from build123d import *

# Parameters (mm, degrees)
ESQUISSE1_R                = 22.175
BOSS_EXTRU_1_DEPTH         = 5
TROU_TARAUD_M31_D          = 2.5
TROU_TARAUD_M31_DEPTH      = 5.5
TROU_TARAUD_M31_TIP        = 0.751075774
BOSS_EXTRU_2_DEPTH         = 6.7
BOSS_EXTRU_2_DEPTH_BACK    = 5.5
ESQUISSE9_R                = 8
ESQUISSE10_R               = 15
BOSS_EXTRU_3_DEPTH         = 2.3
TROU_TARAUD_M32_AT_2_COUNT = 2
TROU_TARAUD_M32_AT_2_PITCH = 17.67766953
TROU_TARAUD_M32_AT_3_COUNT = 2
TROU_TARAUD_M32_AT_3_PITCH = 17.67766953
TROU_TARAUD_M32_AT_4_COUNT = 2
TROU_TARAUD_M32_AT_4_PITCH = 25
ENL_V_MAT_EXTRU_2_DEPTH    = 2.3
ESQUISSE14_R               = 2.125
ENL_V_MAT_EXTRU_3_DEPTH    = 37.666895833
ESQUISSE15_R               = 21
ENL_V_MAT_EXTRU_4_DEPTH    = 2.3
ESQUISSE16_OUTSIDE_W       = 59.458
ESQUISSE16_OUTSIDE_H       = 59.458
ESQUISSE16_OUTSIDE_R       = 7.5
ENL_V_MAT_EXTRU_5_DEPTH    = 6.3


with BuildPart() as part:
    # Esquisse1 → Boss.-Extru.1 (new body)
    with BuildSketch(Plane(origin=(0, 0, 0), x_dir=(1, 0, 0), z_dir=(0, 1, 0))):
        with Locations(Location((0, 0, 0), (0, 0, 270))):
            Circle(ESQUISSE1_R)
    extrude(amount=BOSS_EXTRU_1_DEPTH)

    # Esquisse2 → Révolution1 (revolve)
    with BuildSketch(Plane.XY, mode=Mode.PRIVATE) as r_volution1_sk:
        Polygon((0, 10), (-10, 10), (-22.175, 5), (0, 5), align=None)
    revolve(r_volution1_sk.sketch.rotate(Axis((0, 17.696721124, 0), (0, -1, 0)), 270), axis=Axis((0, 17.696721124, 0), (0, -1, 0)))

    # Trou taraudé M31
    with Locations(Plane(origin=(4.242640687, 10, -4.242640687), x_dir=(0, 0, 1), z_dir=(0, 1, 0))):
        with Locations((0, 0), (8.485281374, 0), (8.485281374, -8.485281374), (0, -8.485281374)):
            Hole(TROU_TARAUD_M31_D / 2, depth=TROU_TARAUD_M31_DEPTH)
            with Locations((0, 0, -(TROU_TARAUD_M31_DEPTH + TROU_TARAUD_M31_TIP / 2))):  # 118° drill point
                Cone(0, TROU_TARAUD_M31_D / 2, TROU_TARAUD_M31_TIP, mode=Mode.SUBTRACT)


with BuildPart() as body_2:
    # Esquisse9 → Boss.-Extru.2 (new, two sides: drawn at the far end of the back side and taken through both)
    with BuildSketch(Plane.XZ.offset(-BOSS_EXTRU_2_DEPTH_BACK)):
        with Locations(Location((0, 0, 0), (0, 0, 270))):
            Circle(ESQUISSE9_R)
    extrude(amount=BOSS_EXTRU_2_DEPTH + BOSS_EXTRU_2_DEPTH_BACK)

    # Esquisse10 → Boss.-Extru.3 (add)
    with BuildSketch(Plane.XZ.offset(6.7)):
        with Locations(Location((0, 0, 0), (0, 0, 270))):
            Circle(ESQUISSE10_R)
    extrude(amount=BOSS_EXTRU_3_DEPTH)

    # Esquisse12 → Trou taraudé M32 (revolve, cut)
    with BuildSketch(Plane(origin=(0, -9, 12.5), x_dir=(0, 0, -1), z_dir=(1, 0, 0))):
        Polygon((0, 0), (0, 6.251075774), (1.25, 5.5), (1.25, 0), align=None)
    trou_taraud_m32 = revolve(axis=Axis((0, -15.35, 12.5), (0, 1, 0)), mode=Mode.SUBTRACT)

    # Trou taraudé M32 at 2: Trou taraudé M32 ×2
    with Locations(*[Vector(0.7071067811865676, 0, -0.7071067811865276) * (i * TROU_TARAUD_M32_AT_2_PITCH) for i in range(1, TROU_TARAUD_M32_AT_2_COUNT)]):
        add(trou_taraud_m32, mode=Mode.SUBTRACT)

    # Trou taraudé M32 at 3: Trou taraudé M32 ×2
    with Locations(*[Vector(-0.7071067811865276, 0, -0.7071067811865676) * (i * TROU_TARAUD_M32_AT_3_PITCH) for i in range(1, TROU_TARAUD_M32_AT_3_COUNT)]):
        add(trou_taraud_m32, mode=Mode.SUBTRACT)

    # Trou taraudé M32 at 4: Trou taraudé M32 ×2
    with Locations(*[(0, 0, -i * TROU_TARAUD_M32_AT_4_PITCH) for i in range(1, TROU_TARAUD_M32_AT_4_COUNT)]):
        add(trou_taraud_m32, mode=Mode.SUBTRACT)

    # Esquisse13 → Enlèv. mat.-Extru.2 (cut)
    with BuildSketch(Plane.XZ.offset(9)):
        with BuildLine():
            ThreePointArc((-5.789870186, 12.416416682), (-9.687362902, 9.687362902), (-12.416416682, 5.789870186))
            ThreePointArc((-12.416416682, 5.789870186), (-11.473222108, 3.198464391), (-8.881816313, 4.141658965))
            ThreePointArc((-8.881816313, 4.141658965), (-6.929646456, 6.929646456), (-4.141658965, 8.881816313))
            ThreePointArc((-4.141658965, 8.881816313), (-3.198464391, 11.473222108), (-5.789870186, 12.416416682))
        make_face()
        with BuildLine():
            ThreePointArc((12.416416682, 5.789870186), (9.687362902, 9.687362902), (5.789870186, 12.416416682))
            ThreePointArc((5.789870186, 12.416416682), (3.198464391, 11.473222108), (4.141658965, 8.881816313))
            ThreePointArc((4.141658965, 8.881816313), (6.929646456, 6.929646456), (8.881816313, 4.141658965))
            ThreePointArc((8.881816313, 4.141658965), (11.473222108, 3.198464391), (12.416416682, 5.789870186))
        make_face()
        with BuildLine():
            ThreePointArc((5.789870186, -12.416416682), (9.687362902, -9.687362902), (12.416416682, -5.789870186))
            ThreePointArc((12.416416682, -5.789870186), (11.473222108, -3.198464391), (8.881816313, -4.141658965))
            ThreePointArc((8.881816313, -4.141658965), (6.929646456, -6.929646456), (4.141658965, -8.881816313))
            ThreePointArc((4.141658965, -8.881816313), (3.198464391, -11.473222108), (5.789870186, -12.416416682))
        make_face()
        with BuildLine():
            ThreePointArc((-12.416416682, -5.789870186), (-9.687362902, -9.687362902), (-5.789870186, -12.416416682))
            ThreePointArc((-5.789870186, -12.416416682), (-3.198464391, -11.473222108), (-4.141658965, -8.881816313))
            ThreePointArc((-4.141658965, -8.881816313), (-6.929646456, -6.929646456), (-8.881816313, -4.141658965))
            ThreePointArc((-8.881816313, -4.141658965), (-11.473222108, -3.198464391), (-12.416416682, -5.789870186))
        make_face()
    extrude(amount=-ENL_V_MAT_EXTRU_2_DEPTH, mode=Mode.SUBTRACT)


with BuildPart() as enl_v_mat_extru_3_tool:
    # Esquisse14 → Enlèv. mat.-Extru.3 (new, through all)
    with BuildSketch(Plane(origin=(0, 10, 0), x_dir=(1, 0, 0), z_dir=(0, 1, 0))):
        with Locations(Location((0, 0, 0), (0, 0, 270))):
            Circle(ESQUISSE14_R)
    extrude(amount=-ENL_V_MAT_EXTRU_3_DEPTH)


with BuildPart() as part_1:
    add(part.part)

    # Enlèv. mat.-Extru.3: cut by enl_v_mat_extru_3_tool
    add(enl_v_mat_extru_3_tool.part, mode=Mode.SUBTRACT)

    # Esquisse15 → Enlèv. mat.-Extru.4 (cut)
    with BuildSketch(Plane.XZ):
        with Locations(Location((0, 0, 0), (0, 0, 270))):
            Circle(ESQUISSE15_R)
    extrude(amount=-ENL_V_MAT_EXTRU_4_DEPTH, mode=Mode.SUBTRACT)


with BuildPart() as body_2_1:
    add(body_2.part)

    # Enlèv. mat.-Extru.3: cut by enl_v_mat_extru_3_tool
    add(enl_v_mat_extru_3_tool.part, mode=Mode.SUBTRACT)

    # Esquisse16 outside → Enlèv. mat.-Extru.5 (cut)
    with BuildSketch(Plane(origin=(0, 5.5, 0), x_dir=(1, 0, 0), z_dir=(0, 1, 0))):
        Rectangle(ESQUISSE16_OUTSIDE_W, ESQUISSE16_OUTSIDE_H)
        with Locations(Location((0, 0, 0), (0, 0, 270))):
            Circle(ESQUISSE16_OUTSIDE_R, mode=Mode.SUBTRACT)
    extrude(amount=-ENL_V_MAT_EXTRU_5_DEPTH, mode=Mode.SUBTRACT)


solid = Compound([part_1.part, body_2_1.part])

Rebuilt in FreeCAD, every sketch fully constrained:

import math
import FreeCAD as App
import Part
import Sketcher

V = App.Vector
Q = App.Units.Quantity


def add_polygon(sketch, points):
    """Adds a closed chain of lines whose ends are joined by coincident constraints."""
    first, n = sketch.GeometryCount, len(points)
    for a, b in zip(points, points[1:] + points[:1]):
        sketch.addGeometry(Part.LineSegment(App.Vector(*a, 0), App.Vector(*b, 0)), False)
    for i in range(n):
        sketch.addConstraint(Sketcher.Constraint("Coincident", first + i, 2, first + (i + 1) % n, 1))

doc = App.newDocument("Part")
body = doc.addObject("PartDesign::Body", "Body")

sketch1 = body.newObject("Sketcher::SketchObject", "Sketch")
sketch1.AttachmentSupport = (doc.getObject("XZ_Plane"), [""])
sketch1.MapMode = "FlatFace"
sketch1.addGeometry(Part.Circle(V(0, 0, 0), V(0, 0, 1), 22), False)
sketch1.addConstraint([
    Sketcher.Constraint("Coincident", 0, 3, -1, 1),
    Sketcher.Constraint("Diameter", 0, 44.35),
])
pad1 = body.newObject("PartDesign::Pad", "Pad")
pad1.Profile = sketch1
pad1.Length = 5
pad1.Reversed = True

sketch2 = body.newObject("Sketcher::SketchObject", "Sketch001")
sketch2.AttachmentSupport = (doc.getObject("XY_Plane"), [""])
sketch2.MapMode = "FlatFace"
add_polygon(sketch2, [(0, 10), (-10, 10), (-22, 5), (0, 5)])
sketch2.addConstraint([
    Sketcher.Constraint("Horizontal", 0),
    Sketcher.Constraint("Horizontal", 2),
    Sketcher.Constraint("Vertical", 3),
    Sketcher.Constraint("PointOnObject", 2, 2, -2),
    Sketcher.Constraint("DistanceX", 0, 2, 0, 1, 10.0),
    Sketcher.Constraint("DistanceY", 3, 1, 3, 2, 5.0),
    Sketcher.Constraint("DistanceY", -1, 1, 0, 2, 10.0),
    Sketcher.Constraint("DistanceX", 2, 1, 2, 2, 22.175),
])
revolution = body.newObject("PartDesign::Revolution", "Revolution")
revolution.Profile = sketch2
revolution.ReferenceAxis = (sketch2, ["V_Axis"])
revolution.Angle = 360

sketch3 = body.newObject("Sketcher::SketchObject", "Sketch002")
sketch3.AttachmentSupport = (doc.getObject("XZ_Plane"), [""])
sketch3.MapMode = "FlatFace"
sketch3.AttachmentOffset = App.Placement(V(0, 0, -10), App.Rotation())
sketch3.addGeometry([
    Part.Circle(V(4.2, -4.2, 0), V(0, 0, 1), 1.2),
    Part.Circle(V(4.2, 4.2, 0), V(0, 0, 1), 1.2),
    Part.Circle(V(-4.2, 4.2, 0), V(0, 0, 1), 1.2),
    Part.Circle(V(-4.2, -4.2, 0), V(0, 0, 1), 1.2),
], False)
sketch3.addConstraint([
    Sketcher.Constraint("Equal", 0, 1),
    Sketcher.Constraint("Equal", 1, 2),
    Sketcher.Constraint("Equal", 2, 3),
    Sketcher.Constraint("Symmetric", 0, 3, 2, 3, -1, 1),
    Sketcher.Constraint("Symmetric", 1, 3, 3, 3, -1, 1),
    Sketcher.Constraint("Symmetric", 1, 3, 2, 3, -2),
    Sketcher.Constraint("Diameter", 0, 2.5),
    Sketcher.Constraint("DistanceX", -1, 1, 0, 3, 4.242641),
    Sketcher.Constraint("DistanceY", 0, 3, -1, 1, 4.242641),
])
doc.recompute()
hole = body.newObject("PartDesign::Hole", "Hole")
hole.Profile = sketch3
hole.ThreadType = "None"
hole.Diameter = 2.5
hole.DepthType = "Dimension"
hole.Depth = 5.5
hole.DrillPoint = "Angled"
hole.DrillPointAngle = 118
hole.Reversed = True
body2 = doc.addObject("PartDesign::Body", "Body001")

sketch4 = body2.newObject("Sketcher::SketchObject", "Sketch003")
sketch4.AttachmentSupport = (doc.getObject("XZ_Plane001"), [""])
sketch4.MapMode = "FlatFace"
sketch4.addGeometry(Part.Circle(V(0, 0, 0), V(0, 0, 1), 8), False)
sketch4.addConstraint([
    Sketcher.Constraint("Coincident", 0, 3, -1, 1),
    Sketcher.Constraint("Diameter", 0, 16.0),
])
pad2 = body2.newObject("PartDesign::Pad", "Pad001")
pad2.Profile = sketch4
pad2.Type = "TwoLengths"
pad2.Length = 6.7
pad2.Length2 = 5.5

sketch5 = body2.newObject("Sketcher::SketchObject", "Sketch004")
sketch5.AttachmentSupport = (doc.getObject("XZ_Plane001"), [""])
sketch5.MapMode = "FlatFace"
sketch5.AttachmentOffset = App.Placement(V(0, 0, 6.7), App.Rotation())
sketch5.addGeometry(Part.Circle(V(0, 0, 0), V(0, 0, 1), 15), False)
sketch5.addConstraint([
    Sketcher.Constraint("Coincident", 0, 3, -1, 1),
    Sketcher.Constraint("Diameter", 0, 30.0),
])
pad3 = body2.newObject("PartDesign::Pad", "Pad002")
pad3.Profile = sketch5
pad3.Length = 2.3

sketch6 = body2.newObject("Sketcher::SketchObject", "Sketch005")
sketch6.AttachmentSupport = (doc.getObject("YZ_Plane001"), [""])
sketch6.MapMode = "FlatFace"
add_polygon(sketch6, [(-2.7, 12.5), (-9, 12.5), (-9, 11.2), (-3.5, 11.2)])
sketch6.addGeometry(Part.LineSegment(V(-9, 12.5, 0), V(-2.7, 12.5, 0)), True)
sketch6.addConstraint([
    Sketcher.Constraint("Horizontal", 0),
    Sketcher.Constraint("Vertical", 1),
    Sketcher.Constraint("Horizontal", 2),
    Sketcher.Constraint("Horizontal", 4),
    Sketcher.Constraint("Coincident", 4, 1, 0, 2),
    Sketcher.Constraint("Equal", 0, 4),
    Sketcher.Constraint("Angle", 3, Q("59 deg")),
    Sketcher.Constraint("DistanceX", 2, 1, 2, 2, 5.5),
    Sketcher.Constraint("DistanceX", 0, 2, -1, 1, 9.0),
    Sketcher.Constraint("DistanceY", 1, 2, 1, 1, 1.25),
    Sketcher.Constraint("DistanceY", -1, 1, 0, 2, 12.5),
])
groove = body2.newObject("PartDesign::Groove", "Groove")
groove.Profile = sketch6
groove.ReferenceAxis = (sketch6, ["Axis0"])
groove.Angle = 360
doc.recompute()

datumline = body2.newObject("PartDesign::Line", "DatumLine")
datumline.Placement = App.Placement(V(0, 0, 0), App.Rotation(V(0, 0, 1), V(0.707106781, 0, -0.707106781)))
linearpattern = body2.newObject("PartDesign::LinearPattern", "LinearPattern")
linearpattern.Originals = [groove]
linearpattern.Direction = (datumline, [""])
linearpattern.Mode = "offset"
linearpattern.Offset = 17.67767
linearpattern.Occurrences = 2
body2.Tip = linearpattern
doc.recompute()

datumline2 = body2.newObject("PartDesign::Line", "DatumLine001")
datumline2.Placement = App.Placement(V(0, 0, 0), App.Rotation(V(0, 0, 1), V(-0.707106781, 0, -0.707106781)))
linearpattern2 = body2.newObject("PartDesign::LinearPattern", "LinearPattern001")
linearpattern2.Originals = [groove]
linearpattern2.Direction = (datumline2, [""])
linearpattern2.Mode = "offset"
linearpattern2.Offset = 17.67767
linearpattern2.Occurrences = 2
body2.Tip = linearpattern2
doc.recompute()

linearpattern3 = body2.newObject("PartDesign::LinearPattern", "LinearPattern002")
linearpattern3.Originals = [groove]
linearpattern3.Direction = (doc.getObject("Z_Axis001"), [""])
linearpattern3.Mode = "offset"
linearpattern3.Offset = 25
linearpattern3.Occurrences = 2
linearpattern3.Reversed = True
body2.Tip = linearpattern3

sketch7 = body2.newObject("Sketcher::SketchObject", "Sketch006")
sketch7.AttachmentSupport = (doc.getObject("XZ_Plane001"), [""])
sketch7.MapMode = "FlatFace"
sketch7.AttachmentOffset = App.Placement(V(0, 0, 9), App.Rotation())
sketch7.addGeometry([
    Part.ArcOfCircle(Part.Circle(V(0, 0, 0), V(0, 0, 1), 13.7), math.radians(115), math.radians(155)),
    Part.ArcOfCircle(Part.Circle(V(-10.6, 5, 0), V(0, 0, 1), 1.9), math.radians(155), math.radians(335)),
    Part.ArcOfCircle(Part.Circle(V(0, 0, 0), V(0, 0, 1), 9.8), math.radians(115), math.radians(155)),
    Part.ArcOfCircle(Part.Circle(V(-5, 10.6, 0), V(0, 0, 1), 1.9), math.radians(-65), math.radians(115)),
    Part.ArcOfCircle(Part.Circle(V(0, 0, 0), V(0, 0, 1), 13.7), math.radians(25), math.radians(65)),
    Part.ArcOfCircle(Part.Circle(V(5, 10.6, 0), V(0, 0, 1), 1.9), math.radians(65), math.radians(245)),
    Part.ArcOfCircle(Part.Circle(V(0, 0, 0), V(0, 0, 1), 9.8), math.radians(25), math.radians(65)),
    Part.ArcOfCircle(Part.Circle(V(10.6, 5, 0), V(0, 0, 1), 1.9), math.radians(-155), math.radians(25)),
    Part.ArcOfCircle(Part.Circle(V(0, 0, 0), V(0, 0, 1), 13.7), math.radians(-65), math.radians(-25)),
    Part.ArcOfCircle(Part.Circle(V(10.6, -5, 0), V(0, 0, 1), 1.9), math.radians(-25), math.radians(155)),
    Part.ArcOfCircle(Part.Circle(V(0, 0, 0), V(0, 0, 1), 9.8), math.radians(-65), math.radians(-25)),
    Part.ArcOfCircle(Part.Circle(V(5, -10.6, 0), V(0, 0, 1), 1.9), math.radians(115), math.radians(295)),
    Part.ArcOfCircle(Part.Circle(V(0, 0, 0), V(0, 0, 1), 13.7), math.radians(-155), math.radians(-115)),
    Part.ArcOfCircle(Part.Circle(V(-5, -10.6, 0), V(0, 0, 1), 1.9), math.radians(-115), math.radians(65)),
    Part.ArcOfCircle(Part.Circle(V(0, 0, 0), V(0, 0, 1), 9.8), math.radians(-155), math.radians(-115)),
    Part.ArcOfCircle(Part.Circle(V(-10.6, -5, 0), V(0, 0, 1), 1.9), math.radians(25), math.radians(205)),
], False)
sketch7.addConstraint([
    Sketcher.Constraint("Tangent", 0, 2, 1, 1),
    Sketcher.Constraint("Tangent", 1, 2, 2, 2),
    Sketcher.Constraint("Tangent", 2, 1, 3, 1),
    Sketcher.Constraint("Tangent", 3, 2, 0, 1),
    Sketcher.Constraint("Tangent", 4, 2, 5, 1),
    Sketcher.Constraint("Tangent", 5, 2, 6, 2),
    Sketcher.Constraint("Tangent", 6, 1, 7, 1),
    Sketcher.Constraint("Tangent", 7, 2, 4, 1),
    Sketcher.Constraint("Tangent", 8, 2, 9, 1),
    Sketcher.Constraint("Tangent", 9, 2, 10, 2),
    Sketcher.Constraint("Tangent", 10, 1, 11, 1),
    Sketcher.Constraint("Tangent", 11, 2, 8, 1),
    Sketcher.Constraint("Tangent", 12, 2, 13, 1),
    Sketcher.Constraint("Tangent", 13, 2, 14, 2),
    Sketcher.Constraint("Tangent", 14, 1, 15, 1),
    Sketcher.Constraint("Tangent", 15, 2, 12, 1),
    Sketcher.Constraint("Coincident", 0, 3, -1, 1),
    Sketcher.Constraint("Coincident", 2, 3, -1, 1),
    Sketcher.Constraint("Coincident", 4, 3, -1, 1),
    Sketcher.Constraint("Coincident", 6, 3, -1, 1),
    Sketcher.Constraint("Coincident", 8, 3, -1, 1),
    Sketcher.Constraint("Coincident", 10, 3, -1, 1),
    Sketcher.Constraint("Coincident", 12, 3, -1, 1),
    Sketcher.Constraint("Coincident", 14, 3, -1, 1),
    Sketcher.Constraint("Equal", 0, 4),
    Sketcher.Constraint("Equal", 3, 5),
    Sketcher.Constraint("Equal", 4, 8),
    Sketcher.Constraint("Equal", 7, 9),
    Sketcher.Constraint("Equal", 8, 12),
    Sketcher.Constraint("Equal", 11, 13),
    Sketcher.Constraint("Horizontal", 3, 3, 5, 3),
    Sketcher.Constraint("Horizontal", 1, 3, 7, 3),
    Sketcher.Constraint("Horizontal", 11, 3, 13, 3),
    Sketcher.Constraint("Horizontal", 9, 3, 15, 3),
    Sketcher.Constraint("Vertical", 7, 3, 9, 3),
    Sketcher.Constraint("Vertical", 5, 3, 11, 3),
    Sketcher.Constraint("Radius", 0, 13.7),
    Sketcher.Constraint("Radius", 2, 9.8),
    Sketcher.Constraint("DistanceX", 0, 2, 1, 3, 1.7673),
    Sketcher.Constraint("DistanceY", 2, 1, 3, 3, 1.7673),
])
pocket1 = body2.newObject("PartDesign::Pocket", "Pocket")
pocket1.Profile = sketch7
pocket1.Length = 2.3
body3 = doc.addObject("PartDesign::Body", "Body002")

sketch8 = body3.newObject("Sketcher::SketchObject", "Sketch007")
sketch8.AttachmentSupport = (doc.getObject("XZ_Plane002"), [""])
sketch8.MapMode = "FlatFace"
sketch8.AttachmentOffset = App.Placement(V(0, 0, -10), App.Rotation())
sketch8.addGeometry(Part.Circle(V(0, 0, 0), V(0, 0, 1), 2.1), False)
sketch8.addConstraint([
    Sketcher.Constraint("Coincident", 0, 3, -1, 1),
    Sketcher.Constraint("Diameter", 0, 4.25),
])
pad4 = body3.newObject("PartDesign::Pad", "Pad003")
pad4.Profile = sketch8
pad4.Length = 37.666896
doc.recompute()

body4 = doc.addObject("PartDesign::Body", "Body003")
body4.BaseFeature = body3
boolean = body.newObject("PartDesign::Boolean", "Boolean")
boolean.Type = "Cut"
boolean.addObjects([body4])
doc.recompute()

sketch9 = body.newObject("Sketcher::SketchObject", "Sketch008")
sketch9.AttachmentSupport = (doc.getObject("XZ_Plane"), [""])
sketch9.MapMode = "FlatFace"
sketch9.addGeometry(Part.Circle(V(0, 0, 0), V(0, 0, 1), 21), False)
sketch9.addConstraint([
    Sketcher.Constraint("Coincident", 0, 3, -1, 1),
    Sketcher.Constraint("Diameter", 0, 42.0),
])
pocket2 = body.newObject("PartDesign::Pocket", "Pocket001")
pocket2.Profile = sketch9
pocket2.Length = 2.3
doc.recompute()

boolean2 = body2.newObject("PartDesign::Boolean", "Boolean001")
boolean2.Type = "Cut"
boolean2.addObjects([body3])

sketch10 = body2.newObject("Sketcher::SketchObject", "Sketch009")
sketch10.AttachmentSupport = (doc.getObject("XZ_Plane001"), [""])
sketch10.MapMode = "FlatFace"
sketch10.AttachmentOffset = App.Placement(V(0, 0, -5.5), App.Rotation())
add_polygon(sketch10, [(-30, -30), (-30, 30), (30, 30), (30, -30)])
sketch10.addGeometry(Part.Circle(V(0, 0, 0), V(0, 0, 1), 8), False)
sketch10.addConstraint([
    Sketcher.Constraint("Vertical", 0),
    Sketcher.Constraint("Horizontal", 1),
    Sketcher.Constraint("Vertical", 2),
    Sketcher.Constraint("Horizontal", 3),
    Sketcher.Constraint("Coincident", 4, 3, -1, 1),
    Sketcher.Constraint("Symmetric", 0, 2, 2, 2, -1, 1),
    Sketcher.Constraint("Equal", 3, 0),
    Sketcher.Constraint("Diameter", 4, 15.0),
    Sketcher.Constraint("DistanceX", 1, 1, 1, 2, 59.458),
])
pocket3 = body2.newObject("PartDesign::Pocket", "Pocket002")
pocket3.Profile = sketch10
pocket3.Length = 6.3
pocket3.Reversed = True

doc.recompute()
